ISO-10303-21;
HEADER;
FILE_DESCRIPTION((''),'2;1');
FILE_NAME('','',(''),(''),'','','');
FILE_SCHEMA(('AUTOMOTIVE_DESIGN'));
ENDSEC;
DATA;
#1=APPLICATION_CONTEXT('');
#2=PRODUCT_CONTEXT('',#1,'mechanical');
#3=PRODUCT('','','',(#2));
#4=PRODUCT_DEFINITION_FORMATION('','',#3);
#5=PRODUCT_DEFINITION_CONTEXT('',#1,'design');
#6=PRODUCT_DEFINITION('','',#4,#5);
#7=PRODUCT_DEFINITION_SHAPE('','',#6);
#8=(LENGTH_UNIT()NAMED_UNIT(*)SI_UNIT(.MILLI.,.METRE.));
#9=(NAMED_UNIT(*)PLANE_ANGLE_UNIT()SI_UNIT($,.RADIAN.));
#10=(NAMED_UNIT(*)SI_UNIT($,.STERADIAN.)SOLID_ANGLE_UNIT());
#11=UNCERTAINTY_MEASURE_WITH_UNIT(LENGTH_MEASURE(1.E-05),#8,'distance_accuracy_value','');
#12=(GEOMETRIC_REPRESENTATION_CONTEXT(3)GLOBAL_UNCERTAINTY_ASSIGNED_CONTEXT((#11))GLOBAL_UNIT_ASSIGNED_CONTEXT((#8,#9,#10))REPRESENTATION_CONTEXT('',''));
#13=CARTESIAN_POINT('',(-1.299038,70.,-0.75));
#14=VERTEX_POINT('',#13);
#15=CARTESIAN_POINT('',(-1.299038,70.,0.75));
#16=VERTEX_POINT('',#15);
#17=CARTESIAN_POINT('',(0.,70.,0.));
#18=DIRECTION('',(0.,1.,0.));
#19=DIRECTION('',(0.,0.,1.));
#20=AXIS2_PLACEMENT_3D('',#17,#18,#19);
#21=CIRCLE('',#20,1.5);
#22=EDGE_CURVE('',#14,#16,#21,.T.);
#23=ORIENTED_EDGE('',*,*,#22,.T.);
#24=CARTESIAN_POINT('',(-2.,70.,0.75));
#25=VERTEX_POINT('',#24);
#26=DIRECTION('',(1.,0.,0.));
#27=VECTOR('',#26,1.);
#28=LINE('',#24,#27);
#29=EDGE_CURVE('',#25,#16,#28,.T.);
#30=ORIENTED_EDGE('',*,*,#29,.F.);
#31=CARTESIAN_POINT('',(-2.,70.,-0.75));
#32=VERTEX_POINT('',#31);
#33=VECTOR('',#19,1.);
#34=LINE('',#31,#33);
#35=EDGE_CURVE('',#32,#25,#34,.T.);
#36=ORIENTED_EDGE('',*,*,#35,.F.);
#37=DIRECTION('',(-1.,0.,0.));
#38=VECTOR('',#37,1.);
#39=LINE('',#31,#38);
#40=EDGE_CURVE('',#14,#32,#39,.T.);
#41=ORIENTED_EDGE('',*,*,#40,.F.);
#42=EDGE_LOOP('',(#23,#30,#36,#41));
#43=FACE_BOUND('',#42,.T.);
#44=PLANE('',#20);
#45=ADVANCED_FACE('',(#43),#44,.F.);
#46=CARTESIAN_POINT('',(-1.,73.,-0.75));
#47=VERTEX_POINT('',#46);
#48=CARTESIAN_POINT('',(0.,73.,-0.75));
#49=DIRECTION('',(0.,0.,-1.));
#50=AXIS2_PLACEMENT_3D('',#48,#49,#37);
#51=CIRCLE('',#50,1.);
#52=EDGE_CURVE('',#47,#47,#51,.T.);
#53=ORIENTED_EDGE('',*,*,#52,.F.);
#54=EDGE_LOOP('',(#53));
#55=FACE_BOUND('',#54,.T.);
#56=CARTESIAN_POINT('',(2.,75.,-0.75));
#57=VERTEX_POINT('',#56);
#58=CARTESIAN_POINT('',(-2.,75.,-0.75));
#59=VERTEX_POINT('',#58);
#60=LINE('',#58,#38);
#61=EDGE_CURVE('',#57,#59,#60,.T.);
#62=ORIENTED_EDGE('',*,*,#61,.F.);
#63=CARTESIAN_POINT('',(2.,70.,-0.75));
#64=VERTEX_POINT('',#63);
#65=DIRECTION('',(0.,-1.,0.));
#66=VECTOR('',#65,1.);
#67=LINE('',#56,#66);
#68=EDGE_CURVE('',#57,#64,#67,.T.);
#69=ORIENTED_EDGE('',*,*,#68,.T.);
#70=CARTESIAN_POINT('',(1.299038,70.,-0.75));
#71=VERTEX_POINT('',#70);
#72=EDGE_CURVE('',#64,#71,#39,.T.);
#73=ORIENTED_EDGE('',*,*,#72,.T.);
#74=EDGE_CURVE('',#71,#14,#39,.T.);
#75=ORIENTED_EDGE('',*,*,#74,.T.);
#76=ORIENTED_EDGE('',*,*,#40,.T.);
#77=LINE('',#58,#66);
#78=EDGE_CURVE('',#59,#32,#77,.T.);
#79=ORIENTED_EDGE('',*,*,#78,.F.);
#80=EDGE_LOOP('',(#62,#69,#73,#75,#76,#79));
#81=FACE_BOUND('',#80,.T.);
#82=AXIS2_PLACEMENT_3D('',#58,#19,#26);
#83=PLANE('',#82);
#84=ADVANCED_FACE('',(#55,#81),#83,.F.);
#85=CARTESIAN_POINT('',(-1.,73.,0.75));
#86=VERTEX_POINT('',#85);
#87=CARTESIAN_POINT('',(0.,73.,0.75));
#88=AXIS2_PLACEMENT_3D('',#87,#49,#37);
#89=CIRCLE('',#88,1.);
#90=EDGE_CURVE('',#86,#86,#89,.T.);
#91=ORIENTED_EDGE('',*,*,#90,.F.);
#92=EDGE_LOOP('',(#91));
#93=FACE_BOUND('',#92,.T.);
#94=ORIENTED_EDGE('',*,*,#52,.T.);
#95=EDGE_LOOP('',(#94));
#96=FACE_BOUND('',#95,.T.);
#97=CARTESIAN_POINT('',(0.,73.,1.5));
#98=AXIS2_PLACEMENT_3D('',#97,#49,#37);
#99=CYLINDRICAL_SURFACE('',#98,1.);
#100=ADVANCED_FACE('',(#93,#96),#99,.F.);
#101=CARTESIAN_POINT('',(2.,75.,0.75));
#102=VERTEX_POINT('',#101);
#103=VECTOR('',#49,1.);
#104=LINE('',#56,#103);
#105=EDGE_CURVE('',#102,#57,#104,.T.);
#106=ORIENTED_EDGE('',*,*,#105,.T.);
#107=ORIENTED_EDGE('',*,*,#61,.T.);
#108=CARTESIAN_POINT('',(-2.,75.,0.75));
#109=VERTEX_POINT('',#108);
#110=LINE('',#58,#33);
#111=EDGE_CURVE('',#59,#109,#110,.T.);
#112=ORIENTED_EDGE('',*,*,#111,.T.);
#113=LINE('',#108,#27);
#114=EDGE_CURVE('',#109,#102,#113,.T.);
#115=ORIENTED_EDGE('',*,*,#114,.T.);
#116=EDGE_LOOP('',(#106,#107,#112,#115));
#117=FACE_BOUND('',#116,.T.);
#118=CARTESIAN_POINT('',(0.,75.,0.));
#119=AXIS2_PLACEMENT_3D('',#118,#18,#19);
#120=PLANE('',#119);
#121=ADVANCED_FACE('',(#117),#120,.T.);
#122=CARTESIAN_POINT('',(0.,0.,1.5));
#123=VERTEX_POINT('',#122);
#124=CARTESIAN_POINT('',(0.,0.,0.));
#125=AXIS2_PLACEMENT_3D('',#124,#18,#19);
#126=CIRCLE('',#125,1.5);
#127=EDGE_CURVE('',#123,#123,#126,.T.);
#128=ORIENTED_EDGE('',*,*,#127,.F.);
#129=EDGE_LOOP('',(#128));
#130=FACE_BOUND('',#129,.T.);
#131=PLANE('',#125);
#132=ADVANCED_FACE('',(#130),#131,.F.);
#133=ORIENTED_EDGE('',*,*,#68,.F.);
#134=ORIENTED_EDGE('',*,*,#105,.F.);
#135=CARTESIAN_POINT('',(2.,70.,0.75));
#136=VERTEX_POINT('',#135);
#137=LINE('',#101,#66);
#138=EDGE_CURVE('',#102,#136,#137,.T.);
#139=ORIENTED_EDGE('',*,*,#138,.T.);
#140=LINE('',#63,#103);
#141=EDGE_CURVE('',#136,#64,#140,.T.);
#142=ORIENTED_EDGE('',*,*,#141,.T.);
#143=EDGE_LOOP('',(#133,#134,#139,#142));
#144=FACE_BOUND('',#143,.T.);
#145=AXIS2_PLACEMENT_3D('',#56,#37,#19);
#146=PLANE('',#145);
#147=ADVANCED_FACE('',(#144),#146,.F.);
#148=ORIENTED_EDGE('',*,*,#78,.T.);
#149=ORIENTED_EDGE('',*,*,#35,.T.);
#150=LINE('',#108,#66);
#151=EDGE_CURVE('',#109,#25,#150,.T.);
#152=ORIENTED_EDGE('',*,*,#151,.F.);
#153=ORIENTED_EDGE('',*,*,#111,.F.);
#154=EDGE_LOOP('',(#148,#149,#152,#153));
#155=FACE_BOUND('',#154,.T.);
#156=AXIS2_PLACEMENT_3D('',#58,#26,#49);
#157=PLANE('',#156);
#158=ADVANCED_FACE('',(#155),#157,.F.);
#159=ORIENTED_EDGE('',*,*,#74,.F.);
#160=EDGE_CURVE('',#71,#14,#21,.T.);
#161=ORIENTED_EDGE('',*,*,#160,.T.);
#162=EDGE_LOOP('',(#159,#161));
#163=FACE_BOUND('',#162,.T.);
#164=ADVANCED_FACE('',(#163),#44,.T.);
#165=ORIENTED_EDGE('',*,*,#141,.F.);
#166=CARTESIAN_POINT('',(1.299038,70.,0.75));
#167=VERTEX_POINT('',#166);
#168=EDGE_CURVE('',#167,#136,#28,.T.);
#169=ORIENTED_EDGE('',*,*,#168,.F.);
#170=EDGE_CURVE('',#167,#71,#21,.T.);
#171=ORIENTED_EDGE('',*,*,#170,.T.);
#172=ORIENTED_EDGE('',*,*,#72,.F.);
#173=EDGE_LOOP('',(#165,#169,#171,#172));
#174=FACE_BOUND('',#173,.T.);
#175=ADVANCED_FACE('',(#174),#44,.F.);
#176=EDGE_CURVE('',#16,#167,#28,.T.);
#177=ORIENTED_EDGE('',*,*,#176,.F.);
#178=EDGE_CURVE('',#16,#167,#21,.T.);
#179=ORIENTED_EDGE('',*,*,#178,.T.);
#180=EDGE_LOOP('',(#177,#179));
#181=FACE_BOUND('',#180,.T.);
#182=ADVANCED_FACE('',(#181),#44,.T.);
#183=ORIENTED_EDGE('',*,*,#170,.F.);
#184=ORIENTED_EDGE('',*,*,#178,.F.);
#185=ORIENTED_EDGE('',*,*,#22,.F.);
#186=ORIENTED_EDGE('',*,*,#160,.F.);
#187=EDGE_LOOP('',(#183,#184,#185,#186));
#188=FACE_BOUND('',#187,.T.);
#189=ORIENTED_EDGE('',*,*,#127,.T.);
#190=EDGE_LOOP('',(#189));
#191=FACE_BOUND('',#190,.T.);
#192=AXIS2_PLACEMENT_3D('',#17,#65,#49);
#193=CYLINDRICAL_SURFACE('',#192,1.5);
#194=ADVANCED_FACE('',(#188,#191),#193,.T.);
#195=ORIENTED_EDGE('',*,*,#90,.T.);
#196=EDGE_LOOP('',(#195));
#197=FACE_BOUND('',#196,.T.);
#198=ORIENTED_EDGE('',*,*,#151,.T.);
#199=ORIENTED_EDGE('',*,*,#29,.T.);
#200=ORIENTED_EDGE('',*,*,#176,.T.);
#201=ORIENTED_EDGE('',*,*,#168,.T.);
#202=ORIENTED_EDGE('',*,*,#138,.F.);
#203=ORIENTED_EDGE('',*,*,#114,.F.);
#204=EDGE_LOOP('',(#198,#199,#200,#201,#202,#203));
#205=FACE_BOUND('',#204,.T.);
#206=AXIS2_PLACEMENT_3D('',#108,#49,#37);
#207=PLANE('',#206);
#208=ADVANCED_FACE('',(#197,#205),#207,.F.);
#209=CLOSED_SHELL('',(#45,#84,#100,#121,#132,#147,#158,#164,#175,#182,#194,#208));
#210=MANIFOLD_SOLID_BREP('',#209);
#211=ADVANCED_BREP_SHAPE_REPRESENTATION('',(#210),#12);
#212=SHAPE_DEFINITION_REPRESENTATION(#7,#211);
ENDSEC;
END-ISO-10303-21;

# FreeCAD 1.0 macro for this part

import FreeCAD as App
import Part
import Sketcher


def add_polygon(sketch, points):
    """Adds a closed chain of lines whose ends are joined by coincident constraints."""
    first, n = sketch.GeometryCount, len(points)
    for a, b in zip(points, points[1:] + points[:1]):
        sketch.addGeometry(Part.LineSegment(App.Vector(*a, 0), App.Vector(*b, 0)), False)
    for i in range(n):
        sketch.addConstraint(Sketcher.Constraint("Coincident", first + i, 2, first + (i + 1) % n, 1))

doc = App.newDocument("Part")
body = doc.addObject("PartDesign::Body", "Body")

# Sketch on XZ plane
sketch1 = body.newObject("Sketcher::SketchObject", "Sketch")
sketch1.AttachmentSupport = (doc.getObject("XZ_Plane"), [""])
sketch1.MapMode = "FlatFace"
sketch1.addGeometry(Part.Circle(App.Vector(0, 0, 0), App.Vector(0, 0, 1), 1.5), False)
sketch1.addConstraint([
    Sketcher.Constraint("Coincident", 0, 3, -1, 1),
    Sketcher.Constraint("Diameter", 0, 3.0),
])
pad1 = body.newObject("PartDesign::Pad", "Pad")
pad1.Profile = sketch1
pad1.Length = 70
pad1.Reversed = True

# Sketch on XZ plane
sketch2 = body.newObject("Sketcher::SketchObject", "Sketch001")
sketch2.AttachmentSupport = (doc.getObject("XZ_Plane"), [""])
sketch2.MapMode = "FlatFace"
sketch2.AttachmentOffset = App.Placement(App.Vector(0, 0, -70), App.Rotation())
add_polygon(sketch2, [(-2, -0.8), (-2, 0.8), (2, 0.8), (2, -0.8)])  # lines 0-3
sketch2.addConstraint([
    Sketcher.Constraint("Vertical", 0),
    Sketcher.Constraint("Horizontal", 1),
    Sketcher.Constraint("Vertical", 2),
    Sketcher.Constraint("Horizontal", 3),
    Sketcher.Constraint("Symmetric", 0, 2, 2, 2, -1, 1),
    Sketcher.Constraint("DistanceX", 1, 1, 1, 2, 4.0),
    Sketcher.Constraint("DistanceY", 0, 1, 0, 2, 1.5),
])
pad2 = body.newObject("PartDesign::Pad", "Pad001")
pad2.Profile = sketch2
pad2.Length = 5
pad2.Reversed = True

# Sketch on XY plane
sketch3 = body.newObject("Sketcher::SketchObject", "Sketch002")
sketch3.AttachmentSupport = (doc.getObject("XY_Plane"), [""])
sketch3.MapMode = "FlatFace"
sketch3.AttachmentOffset = App.Placement(App.Vector(0, 0, -0.75), App.Rotation())
sketch3.addGeometry(Part.Circle(App.Vector(0, 73, 0), App.Vector(0, 0, 1), 1), False)
sketch3.addConstraint([
    Sketcher.Constraint("PointOnObject", 0, 3, -2),
    Sketcher.Constraint("Diameter", 0, 2.0),
    Sketcher.Constraint("DistanceY", -1, 1, 0, 3, 73.0),
])
pocket1 = body.newObject("PartDesign::Pocket", "Pocket")
pocket1.Profile = sketch3
pocket1.Type = "ThroughAll"
pocket1.Reversed = True

doc.recompute()
